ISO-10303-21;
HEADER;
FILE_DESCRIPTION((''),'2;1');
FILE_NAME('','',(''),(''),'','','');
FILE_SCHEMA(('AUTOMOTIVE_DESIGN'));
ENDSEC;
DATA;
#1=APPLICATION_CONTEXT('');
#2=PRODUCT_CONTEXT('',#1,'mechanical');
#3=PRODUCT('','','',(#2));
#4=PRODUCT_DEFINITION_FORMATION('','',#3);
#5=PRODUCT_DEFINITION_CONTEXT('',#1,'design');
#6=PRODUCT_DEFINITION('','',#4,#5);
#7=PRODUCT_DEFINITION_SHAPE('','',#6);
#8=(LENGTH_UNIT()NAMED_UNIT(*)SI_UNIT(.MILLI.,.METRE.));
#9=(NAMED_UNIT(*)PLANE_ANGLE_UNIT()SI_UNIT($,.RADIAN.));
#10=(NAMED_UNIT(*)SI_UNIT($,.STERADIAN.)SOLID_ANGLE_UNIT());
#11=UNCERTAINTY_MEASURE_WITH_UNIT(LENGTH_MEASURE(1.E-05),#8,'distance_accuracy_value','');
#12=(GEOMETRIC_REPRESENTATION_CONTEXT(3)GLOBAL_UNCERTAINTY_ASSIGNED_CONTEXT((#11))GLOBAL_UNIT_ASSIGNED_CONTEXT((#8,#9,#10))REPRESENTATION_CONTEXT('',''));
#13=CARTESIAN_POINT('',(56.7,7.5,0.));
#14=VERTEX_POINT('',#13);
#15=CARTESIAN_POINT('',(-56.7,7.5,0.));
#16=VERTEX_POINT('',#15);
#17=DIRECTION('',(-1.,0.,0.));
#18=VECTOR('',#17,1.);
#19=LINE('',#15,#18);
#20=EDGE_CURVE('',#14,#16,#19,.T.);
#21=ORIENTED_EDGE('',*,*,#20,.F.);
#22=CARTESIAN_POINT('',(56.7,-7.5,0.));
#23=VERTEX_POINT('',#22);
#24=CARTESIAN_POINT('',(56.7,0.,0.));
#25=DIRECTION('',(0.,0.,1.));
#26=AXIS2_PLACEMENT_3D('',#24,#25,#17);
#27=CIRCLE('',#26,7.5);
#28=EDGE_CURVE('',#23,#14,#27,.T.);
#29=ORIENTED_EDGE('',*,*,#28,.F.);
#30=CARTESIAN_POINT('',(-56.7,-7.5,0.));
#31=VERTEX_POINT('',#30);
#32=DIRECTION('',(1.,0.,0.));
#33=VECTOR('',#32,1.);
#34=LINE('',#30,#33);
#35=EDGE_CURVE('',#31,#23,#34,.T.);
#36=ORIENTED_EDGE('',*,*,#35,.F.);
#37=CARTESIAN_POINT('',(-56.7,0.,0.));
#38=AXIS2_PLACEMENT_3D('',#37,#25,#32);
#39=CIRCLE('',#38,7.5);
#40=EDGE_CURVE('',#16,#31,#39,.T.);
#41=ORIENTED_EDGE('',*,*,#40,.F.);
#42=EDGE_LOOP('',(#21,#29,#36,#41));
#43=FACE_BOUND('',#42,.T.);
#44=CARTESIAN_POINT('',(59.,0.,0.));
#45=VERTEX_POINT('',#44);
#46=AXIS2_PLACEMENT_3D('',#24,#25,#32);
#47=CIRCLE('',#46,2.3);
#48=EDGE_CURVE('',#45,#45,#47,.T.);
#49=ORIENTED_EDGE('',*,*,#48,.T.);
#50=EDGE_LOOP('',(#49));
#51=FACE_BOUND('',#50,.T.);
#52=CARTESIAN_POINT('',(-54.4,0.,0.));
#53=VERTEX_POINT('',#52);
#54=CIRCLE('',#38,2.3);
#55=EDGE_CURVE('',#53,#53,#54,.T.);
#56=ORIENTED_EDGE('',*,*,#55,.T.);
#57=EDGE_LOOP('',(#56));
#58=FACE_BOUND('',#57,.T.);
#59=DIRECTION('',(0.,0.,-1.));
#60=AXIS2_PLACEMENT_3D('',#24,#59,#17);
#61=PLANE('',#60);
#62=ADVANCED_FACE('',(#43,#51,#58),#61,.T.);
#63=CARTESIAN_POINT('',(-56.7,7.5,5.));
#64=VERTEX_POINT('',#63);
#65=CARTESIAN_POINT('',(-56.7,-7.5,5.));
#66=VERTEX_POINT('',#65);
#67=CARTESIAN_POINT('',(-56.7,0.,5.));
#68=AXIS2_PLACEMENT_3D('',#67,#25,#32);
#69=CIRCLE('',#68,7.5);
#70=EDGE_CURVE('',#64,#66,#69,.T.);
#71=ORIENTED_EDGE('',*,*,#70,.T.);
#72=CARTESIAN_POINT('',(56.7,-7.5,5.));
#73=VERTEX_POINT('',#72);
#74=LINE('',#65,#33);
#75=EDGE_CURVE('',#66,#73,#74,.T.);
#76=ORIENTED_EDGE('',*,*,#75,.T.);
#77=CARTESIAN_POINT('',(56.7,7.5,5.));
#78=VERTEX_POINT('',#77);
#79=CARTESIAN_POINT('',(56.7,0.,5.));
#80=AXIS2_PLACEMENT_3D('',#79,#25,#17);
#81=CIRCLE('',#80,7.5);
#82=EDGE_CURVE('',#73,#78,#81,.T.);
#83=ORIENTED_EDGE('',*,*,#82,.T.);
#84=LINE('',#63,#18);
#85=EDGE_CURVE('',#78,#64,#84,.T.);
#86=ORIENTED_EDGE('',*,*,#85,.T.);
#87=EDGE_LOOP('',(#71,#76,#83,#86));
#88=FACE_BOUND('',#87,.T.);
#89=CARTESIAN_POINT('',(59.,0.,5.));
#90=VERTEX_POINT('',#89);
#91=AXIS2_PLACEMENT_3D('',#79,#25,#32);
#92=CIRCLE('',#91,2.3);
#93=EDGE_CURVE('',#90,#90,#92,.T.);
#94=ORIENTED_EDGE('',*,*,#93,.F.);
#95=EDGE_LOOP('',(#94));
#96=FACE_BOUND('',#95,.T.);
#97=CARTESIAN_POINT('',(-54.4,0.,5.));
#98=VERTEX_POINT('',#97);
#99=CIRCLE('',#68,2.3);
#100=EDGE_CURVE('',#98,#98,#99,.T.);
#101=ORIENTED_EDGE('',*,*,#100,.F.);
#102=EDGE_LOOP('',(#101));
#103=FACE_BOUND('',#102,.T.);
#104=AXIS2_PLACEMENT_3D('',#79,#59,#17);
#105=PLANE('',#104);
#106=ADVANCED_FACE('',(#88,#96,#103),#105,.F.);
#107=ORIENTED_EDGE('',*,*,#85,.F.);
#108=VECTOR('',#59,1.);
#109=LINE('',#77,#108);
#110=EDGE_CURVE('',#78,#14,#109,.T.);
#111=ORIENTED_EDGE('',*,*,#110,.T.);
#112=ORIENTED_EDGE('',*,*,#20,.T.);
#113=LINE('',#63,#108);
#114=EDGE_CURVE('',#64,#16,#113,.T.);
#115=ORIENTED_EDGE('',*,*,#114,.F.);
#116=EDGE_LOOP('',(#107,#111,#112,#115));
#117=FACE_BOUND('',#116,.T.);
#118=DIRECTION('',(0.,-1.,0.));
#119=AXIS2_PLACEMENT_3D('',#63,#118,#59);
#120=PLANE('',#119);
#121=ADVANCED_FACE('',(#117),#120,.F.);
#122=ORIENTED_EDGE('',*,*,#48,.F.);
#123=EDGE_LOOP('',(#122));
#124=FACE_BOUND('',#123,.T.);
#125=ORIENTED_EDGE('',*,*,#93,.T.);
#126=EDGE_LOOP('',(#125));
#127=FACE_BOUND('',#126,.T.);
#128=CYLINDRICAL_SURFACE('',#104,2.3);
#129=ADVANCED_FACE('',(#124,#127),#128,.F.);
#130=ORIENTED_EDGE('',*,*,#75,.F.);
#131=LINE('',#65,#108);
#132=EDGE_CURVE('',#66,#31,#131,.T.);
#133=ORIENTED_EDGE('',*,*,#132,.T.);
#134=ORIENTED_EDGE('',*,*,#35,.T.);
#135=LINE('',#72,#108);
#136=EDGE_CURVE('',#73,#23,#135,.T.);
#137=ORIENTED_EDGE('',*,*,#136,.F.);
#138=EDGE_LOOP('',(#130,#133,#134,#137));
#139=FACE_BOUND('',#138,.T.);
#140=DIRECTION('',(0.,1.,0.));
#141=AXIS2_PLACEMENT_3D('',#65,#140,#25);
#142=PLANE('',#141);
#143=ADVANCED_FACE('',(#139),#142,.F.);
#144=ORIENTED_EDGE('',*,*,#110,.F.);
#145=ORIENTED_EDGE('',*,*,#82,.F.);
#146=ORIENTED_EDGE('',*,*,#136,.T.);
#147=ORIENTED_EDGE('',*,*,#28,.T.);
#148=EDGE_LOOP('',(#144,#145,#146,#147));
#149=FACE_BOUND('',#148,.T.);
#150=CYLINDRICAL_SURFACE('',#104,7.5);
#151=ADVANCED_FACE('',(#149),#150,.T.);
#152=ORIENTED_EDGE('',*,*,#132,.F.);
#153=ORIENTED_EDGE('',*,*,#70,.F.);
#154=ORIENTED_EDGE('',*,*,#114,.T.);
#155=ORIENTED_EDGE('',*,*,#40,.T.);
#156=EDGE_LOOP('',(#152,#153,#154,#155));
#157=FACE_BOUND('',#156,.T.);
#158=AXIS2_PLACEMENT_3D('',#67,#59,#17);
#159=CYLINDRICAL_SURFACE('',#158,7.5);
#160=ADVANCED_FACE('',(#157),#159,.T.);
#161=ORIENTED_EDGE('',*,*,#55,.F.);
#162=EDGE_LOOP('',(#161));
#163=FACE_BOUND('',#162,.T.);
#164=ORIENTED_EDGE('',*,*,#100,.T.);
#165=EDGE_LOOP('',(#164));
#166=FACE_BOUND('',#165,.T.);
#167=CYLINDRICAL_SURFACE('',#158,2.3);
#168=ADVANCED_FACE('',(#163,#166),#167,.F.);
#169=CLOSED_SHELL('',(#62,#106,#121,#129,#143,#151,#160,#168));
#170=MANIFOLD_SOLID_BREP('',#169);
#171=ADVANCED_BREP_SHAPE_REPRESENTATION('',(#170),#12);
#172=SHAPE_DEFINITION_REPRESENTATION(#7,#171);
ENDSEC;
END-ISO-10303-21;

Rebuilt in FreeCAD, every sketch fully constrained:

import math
import FreeCAD as App
import Part
import Sketcher
Q = App.Units.Quantity

doc = App.newDocument("Part")
body = doc.addObject("PartDesign::Body", "Body")

# Sketch on XY plane
sketch1 = body.newObject("Sketcher::SketchObject", "Sketch")
sketch1.AttachmentSupport = (doc.getObject("XY_Plane"), [""])
sketch1.MapMode = "FlatFace"
sketch1.addGeometry(Part.LineSegment(App.Vector(56.7, 7.5, 0), App.Vector(-56.7, 7.5, 0)), False)
sketch1.addGeometry(Part.ArcOfCircle(Part.Circle(App.Vector(-56.7, 0, 0), App.Vector(0, 0, 1), 7.5), math.radians(90), math.radians(270)), False)
sketch1.addGeometry(Part.LineSegment(App.Vector(-56.7, -7.5, 0), App.Vector(56.7, -7.5, 0)), False)
sketch1.addGeometry(Part.ArcOfCircle(Part.Circle(App.Vector(56.7, 0, 0), App.Vector(0, 0, 1), 7.5), math.radians(-90), math.radians(90)), False)
sketch1.addGeometry(Part.Circle(App.Vector(56.7, 0, 0), App.Vector(0, 0, 1), 2.3), False)
sketch1.addGeometry(Part.Circle(App.Vector(-56.7, 0, 0), App.Vector(0, 0, 1), 2.3), False)
sketch1.addConstraint(Sketcher.Constraint("Tangent", 0, 2, 1, 1))
sketch1.addConstraint(Sketcher.Constraint("Tangent", 1, 2, 2, 1))
sketch1.addConstraint(Sketcher.Constraint("Tangent", 2, 2, 3, 1))
sketch1.addConstraint(Sketcher.Constraint("Tangent", 3, 2, 0, 1))
sketch1.addConstraint(Sketcher.Constraint("Horizontal", 0))
sketch1.addConstraint(Sketcher.Constraint("Horizontal", 2))
sketch1.addConstraint(Sketcher.Constraint("Coincident", 4, 3, 3, 3))
sketch1.addConstraint(Sketcher.Constraint("Coincident", 5, 3, 1, 3))
sketch1.addConstraint(Sketcher.Constraint("Equal", 4, 5))
sketch1.addConstraint(Sketcher.Constraint("Symmetric", 1, 3, 3, 3, -1, 1))
sketch1.addConstraint(Sketcher.Constraint("Diameter", 4, Q("4.6 mm")))
sketch1.addConstraint(Sketcher.Constraint("Radius", 1, Q("7.5 mm")))
sketch1.addConstraint(Sketcher.Constraint("DistanceX", 0, 2, 0, 1, Q("113.4 mm")))
pad1 = body.newObject("PartDesign::Pad", "Pad")
pad1.Profile = sketch1
pad1.Length = 5

doc.recompute()
